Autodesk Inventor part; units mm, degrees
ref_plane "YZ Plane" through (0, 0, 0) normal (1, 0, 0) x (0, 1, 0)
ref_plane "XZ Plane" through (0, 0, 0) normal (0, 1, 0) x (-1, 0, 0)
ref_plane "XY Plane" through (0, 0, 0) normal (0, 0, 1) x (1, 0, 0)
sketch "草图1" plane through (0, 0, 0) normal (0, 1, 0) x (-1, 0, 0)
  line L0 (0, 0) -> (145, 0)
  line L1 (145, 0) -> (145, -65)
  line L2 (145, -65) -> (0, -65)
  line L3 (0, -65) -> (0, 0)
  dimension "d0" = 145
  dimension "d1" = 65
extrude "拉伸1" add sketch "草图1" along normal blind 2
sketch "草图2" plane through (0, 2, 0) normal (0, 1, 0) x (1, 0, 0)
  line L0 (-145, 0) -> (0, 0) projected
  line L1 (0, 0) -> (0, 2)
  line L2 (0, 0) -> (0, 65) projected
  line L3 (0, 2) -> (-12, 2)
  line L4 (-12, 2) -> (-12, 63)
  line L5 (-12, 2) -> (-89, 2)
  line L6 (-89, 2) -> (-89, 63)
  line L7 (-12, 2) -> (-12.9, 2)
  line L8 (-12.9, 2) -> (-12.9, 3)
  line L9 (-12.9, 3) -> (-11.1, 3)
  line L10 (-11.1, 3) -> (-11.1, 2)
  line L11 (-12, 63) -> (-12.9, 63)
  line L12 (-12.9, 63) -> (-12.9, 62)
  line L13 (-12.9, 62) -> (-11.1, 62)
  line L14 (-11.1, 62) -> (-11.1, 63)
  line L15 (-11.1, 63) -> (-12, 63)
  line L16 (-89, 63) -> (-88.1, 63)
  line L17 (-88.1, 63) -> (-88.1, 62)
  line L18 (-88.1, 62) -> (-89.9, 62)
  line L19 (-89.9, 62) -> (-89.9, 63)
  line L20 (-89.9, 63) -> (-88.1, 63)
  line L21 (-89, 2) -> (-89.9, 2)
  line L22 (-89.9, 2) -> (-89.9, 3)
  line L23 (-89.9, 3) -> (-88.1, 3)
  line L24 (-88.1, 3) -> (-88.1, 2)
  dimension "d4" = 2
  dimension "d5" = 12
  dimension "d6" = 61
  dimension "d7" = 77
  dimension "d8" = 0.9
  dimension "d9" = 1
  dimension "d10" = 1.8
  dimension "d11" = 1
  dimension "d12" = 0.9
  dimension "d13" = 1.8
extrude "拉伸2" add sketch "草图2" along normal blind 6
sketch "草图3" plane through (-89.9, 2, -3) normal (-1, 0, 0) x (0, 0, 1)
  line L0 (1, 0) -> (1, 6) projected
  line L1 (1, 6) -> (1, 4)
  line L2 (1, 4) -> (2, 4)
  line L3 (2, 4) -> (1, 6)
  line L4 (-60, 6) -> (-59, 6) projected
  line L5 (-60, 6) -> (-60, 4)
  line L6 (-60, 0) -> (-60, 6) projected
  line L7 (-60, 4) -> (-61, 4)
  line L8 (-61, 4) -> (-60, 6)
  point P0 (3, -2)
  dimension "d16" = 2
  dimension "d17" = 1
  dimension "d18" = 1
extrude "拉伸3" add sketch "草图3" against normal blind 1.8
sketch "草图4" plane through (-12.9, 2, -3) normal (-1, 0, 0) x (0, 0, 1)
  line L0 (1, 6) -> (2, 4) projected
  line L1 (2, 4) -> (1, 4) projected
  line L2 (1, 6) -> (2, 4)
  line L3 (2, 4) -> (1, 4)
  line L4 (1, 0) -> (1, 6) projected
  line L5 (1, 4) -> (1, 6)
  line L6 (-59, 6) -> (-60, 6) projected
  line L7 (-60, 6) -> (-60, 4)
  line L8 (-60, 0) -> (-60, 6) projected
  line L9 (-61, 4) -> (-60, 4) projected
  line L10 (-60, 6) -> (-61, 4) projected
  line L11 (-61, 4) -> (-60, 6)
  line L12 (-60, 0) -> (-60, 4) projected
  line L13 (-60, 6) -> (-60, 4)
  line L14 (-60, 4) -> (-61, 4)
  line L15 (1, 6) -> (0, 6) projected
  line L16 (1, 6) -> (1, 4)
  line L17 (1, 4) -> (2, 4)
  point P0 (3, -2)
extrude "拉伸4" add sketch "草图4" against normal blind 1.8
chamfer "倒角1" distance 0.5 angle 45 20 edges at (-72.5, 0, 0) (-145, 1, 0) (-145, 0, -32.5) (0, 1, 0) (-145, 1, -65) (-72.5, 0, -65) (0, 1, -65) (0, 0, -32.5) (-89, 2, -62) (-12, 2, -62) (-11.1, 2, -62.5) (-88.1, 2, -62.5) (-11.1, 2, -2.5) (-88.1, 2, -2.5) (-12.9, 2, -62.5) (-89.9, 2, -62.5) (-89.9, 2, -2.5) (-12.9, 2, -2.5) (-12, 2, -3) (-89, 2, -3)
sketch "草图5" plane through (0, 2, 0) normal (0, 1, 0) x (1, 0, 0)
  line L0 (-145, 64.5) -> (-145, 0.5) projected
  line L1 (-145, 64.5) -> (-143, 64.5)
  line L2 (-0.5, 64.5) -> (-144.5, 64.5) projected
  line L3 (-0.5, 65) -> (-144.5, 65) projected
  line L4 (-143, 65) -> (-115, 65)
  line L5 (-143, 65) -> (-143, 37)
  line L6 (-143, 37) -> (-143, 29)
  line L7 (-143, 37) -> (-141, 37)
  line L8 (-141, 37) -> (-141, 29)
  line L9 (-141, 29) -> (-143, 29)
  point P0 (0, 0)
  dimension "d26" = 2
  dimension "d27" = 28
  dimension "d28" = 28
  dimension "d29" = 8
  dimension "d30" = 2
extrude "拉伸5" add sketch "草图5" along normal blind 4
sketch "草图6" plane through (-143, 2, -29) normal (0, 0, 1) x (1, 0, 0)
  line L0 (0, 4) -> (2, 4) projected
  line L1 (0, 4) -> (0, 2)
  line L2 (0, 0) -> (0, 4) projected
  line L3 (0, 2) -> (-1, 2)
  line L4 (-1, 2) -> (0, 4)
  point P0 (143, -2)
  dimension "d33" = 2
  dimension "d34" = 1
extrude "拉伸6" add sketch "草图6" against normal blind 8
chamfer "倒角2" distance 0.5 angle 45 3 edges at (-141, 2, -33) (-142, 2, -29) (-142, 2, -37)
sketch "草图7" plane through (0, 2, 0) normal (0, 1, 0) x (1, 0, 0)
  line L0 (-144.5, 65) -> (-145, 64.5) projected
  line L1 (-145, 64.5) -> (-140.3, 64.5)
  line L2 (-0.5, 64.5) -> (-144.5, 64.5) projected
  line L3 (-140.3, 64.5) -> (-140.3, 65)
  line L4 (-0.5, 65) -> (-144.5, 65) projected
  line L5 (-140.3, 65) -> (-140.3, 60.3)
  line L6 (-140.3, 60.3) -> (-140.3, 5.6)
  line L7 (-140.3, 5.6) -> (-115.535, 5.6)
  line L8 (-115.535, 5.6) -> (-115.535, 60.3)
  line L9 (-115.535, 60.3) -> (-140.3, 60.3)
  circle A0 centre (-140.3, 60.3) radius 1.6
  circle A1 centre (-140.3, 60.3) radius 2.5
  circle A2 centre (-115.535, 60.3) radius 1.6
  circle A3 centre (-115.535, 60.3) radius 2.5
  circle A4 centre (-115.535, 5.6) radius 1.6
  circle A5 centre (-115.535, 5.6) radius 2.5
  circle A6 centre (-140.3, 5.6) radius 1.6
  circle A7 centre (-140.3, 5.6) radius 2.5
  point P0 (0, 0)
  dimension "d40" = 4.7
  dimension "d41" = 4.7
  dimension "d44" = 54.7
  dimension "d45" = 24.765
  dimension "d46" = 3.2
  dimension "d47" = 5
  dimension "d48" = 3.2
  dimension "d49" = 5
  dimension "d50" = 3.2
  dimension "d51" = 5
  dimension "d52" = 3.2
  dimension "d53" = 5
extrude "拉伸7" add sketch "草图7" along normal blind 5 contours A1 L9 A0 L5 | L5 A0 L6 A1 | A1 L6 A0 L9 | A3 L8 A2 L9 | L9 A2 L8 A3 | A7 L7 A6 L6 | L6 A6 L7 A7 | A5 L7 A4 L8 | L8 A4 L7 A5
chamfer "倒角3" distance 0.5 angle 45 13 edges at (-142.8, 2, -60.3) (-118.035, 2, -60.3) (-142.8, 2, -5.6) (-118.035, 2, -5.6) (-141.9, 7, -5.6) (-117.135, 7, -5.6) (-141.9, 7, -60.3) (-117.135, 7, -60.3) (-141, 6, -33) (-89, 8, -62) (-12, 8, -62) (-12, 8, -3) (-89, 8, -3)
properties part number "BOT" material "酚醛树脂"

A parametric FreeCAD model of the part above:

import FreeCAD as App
import Part
import Sketcher

V = App.Vector


def edges_at(feature, points):
    """Names of the edges that pass closest to the given points."""
    edges = feature.Shape.Edges
    near = lambda p: min(range(len(edges)), key=lambda i: edges[i].distToShape(Part.Vertex(*p))[0])
    return sorted({f"Edge{near(p) + 1}" for p in points})


def add_polygon(sketch, points):
    """Adds a closed chain of lines whose ends are joined by coincident constraints."""
    first, n = sketch.GeometryCount, len(points)
    for a, b in zip(points, points[1:] + points[:1]):
        sketch.addGeometry(Part.LineSegment(App.Vector(*a, 0), App.Vector(*b, 0)), False)
    for i in range(n):
        sketch.addConstraint(Sketcher.Constraint("Coincident", first + i, 2, first + (i + 1) % n, 1))

doc = App.newDocument("Part")
body = doc.addObject("PartDesign::Body", "Body")

sketch1 = doc.addObject("Sketcher::SketchObject", "Sketch")
body.addObject(sketch1)
sketch1.AttachmentSupport = (doc.XZ_Plane, [""])
sketch1.MapMode = "FlatFace"
add_polygon(sketch1, [(-145, 0), (0, 0), (0, -65), (-145, -65)])
sketch1.addConstraint(Sketcher.Constraint("Horizontal", 0))
sketch1.addConstraint(Sketcher.Constraint("Vertical", 1))
sketch1.addConstraint(Sketcher.Constraint("Horizontal", 2))
sketch1.addConstraint(Sketcher.Constraint("Vertical", 3))
sketch1.addConstraint(Sketcher.Constraint("Coincident", 0, 2, -1, 1))
sketch1.addConstraint(Sketcher.Constraint("DistanceX", 0, 1, 0, 2, 145.0))
sketch1.addConstraint(Sketcher.Constraint("DistanceY", 1, 2, 1, 1, 65.0))
pad1 = doc.addObject("PartDesign::Pad", "Pad")
body.addObject(pad1)
pad1.Profile = sketch1
pad1.Length = 2
pad1.Reversed = True

sketch2 = doc.addObject("Sketcher::SketchObject", "Sketch001")
body.addObject(sketch2)
sketch2.AttachmentSupport = (doc.XZ_Plane, [""])
sketch2.MapMode = "FlatFace"
sketch2.AttachmentOffset = App.Placement(V(0, 0, -2), App.Rotation())
add_polygon(sketch2, [(-89.9, -62), (-88.1, -62), (-88.1, -63), (-89.9, -63)])
add_polygon(sketch2, [(-88.1, -2), (-88.1, -3), (-89.9, -3), (-89.9, -2)])
add_polygon(sketch2, [(-12.9, -62), (-11.1, -62), (-11.1, -63), (-12.9, -63)])
add_polygon(sketch2, [(-11.1, -2), (-11.1, -3), (-12.9, -3), (-12.9, -2)])
sketch2.addConstraint(Sketcher.Constraint("Horizontal", 0))
sketch2.addConstraint(Sketcher.Constraint("Vertical", 1))
sketch2.addConstraint(Sketcher.Constraint("Horizontal", 2))
sketch2.addConstraint(Sketcher.Constraint("Vertical", 3))
sketch2.addConstraint(Sketcher.Constraint("Vertical", 4))
sketch2.addConstraint(Sketcher.Constraint("Horizontal", 5))
sketch2.addConstraint(Sketcher.Constraint("Vertical", 6))
sketch2.addConstraint(Sketcher.Constraint("Horizontal", 7))
sketch2.addConstraint(Sketcher.Constraint("Horizontal", 8))
sketch2.addConstraint(Sketcher.Constraint("Vertical", 9))
sketch2.addConstraint(Sketcher.Constraint("Horizontal", 10))
sketch2.addConstraint(Sketcher.Constraint("Vertical", 11))
sketch2.addConstraint(Sketcher.Constraint("Vertical", 12))
sketch2.addConstraint(Sketcher.Constraint("Horizontal", 13))
sketch2.addConstraint(Sketcher.Constraint("Vertical", 14))
sketch2.addConstraint(Sketcher.Constraint("Horizontal", 15))
sketch2.addConstraint(Sketcher.Constraint("Horizontal", 3, 2, 8, 2))
sketch2.addConstraint(Sketcher.Constraint("Horizontal", 2, 2, 9, 2))
sketch2.addConstraint(Sketcher.Constraint("Horizontal", 5, 2, 12, 2))
sketch2.addConstraint(Sketcher.Constraint("Horizontal", 7, 2, 14, 2))
sketch2.addConstraint(Sketcher.Constraint("Vertical", 1, 2, 4, 2))
sketch2.addConstraint(Sketcher.Constraint("Vertical", 3, 2, 5, 2))
sketch2.addConstraint(Sketcher.Constraint("Vertical", 9, 2, 12, 2))
sketch2.addConstraint(Sketcher.Constraint("Vertical", 11, 2, 13, 2))
sketch2.addConstraint(Sketcher.Constraint("Equal", 7, 8))
sketch2.addConstraint(Sketcher.Constraint("Equal", 3, 4))
sketch2.addConstraint(Sketcher.Constraint("DistanceY", 1, 2, 1, 1, 1.0))
sketch2.addConstraint(Sketcher.Constraint("DistanceX", 0, 1, 0, 2, 1.8))
sketch2.addConstraint(Sketcher.Constraint("DistanceY", 6, 2, -1, 1, 2.0))
sketch2.addConstraint(Sketcher.Constraint("DistanceY", 2, 2, 6, 2, 61.0))
sketch2.addConstraint(Sketcher.Constraint("DistanceX", 0, 2, 8, 2, 77.0))
sketch2.addConstraint(Sketcher.Constraint("DistanceX", 0, 2, -1, 1, 88.1))
pad2 = doc.addObject("PartDesign::Pad", "Pad001")
body.addObject(pad2)
pad2.Profile = sketch2
pad2.Length = 6
pad2.Reversed = True

sketch3 = doc.addObject("Sketcher::SketchObject", "Sketch002")
body.addObject(sketch3)
sketch3.AttachmentSupport = (doc.YZ_Plane, [""])
sketch3.MapMode = "FlatFace"
sketch3.AttachmentOffset = App.Placement(V(0, 0, -89.9), App.Rotation())
add_polygon(sketch3, [(8, -2), (6, -2), (6, -1)])
add_polygon(sketch3, [(6, -63), (8, -63), (6, -64)])
sketch3.addConstraint(Sketcher.Constraint("Horizontal", 0))
sketch3.addConstraint(Sketcher.Constraint("Vertical", 1))
sketch3.addConstraint(Sketcher.Constraint("Horizontal", 3))
sketch3.addConstraint(Sketcher.Constraint("Vertical", 5))
sketch3.addConstraint(Sketcher.Constraint("Vertical", 2, 2, 3, 2))
sketch3.addConstraint(Sketcher.Constraint("Vertical", 1, 2, 4, 2))
sketch3.addConstraint(Sketcher.Constraint("Equal", 1, 5))
sketch3.addConstraint(Sketcher.Constraint("DistanceX", 0, 2, 0, 1, 2.0))
sketch3.addConstraint(Sketcher.Constraint("DistanceY", 1, 1, 1, 2, 1.0))
sketch3.addConstraint(Sketcher.Constraint("DistanceY", 0, 2, -1, 1, 2.0))
sketch3.addConstraint(Sketcher.Constraint("DistanceX", -1, 1, 0, 2, 6.0))
sketch3.addConstraint(Sketcher.Constraint("DistanceY", 3, 2, -1, 1, 63.0))
pad3 = doc.addObject("PartDesign::Pad", "Pad002")
body.addObject(pad3)
pad3.Profile = sketch3
pad3.Length = 1.8

sketch4 = doc.addObject("Sketcher::SketchObject", "Sketch003")
body.addObject(sketch4)
sketch4.AttachmentSupport = (doc.YZ_Plane, [""])
sketch4.MapMode = "FlatFace"
sketch4.AttachmentOffset = App.Placement(V(0, 0, -12.9), App.Rotation())
add_polygon(sketch4, [(6, -1), (8, -2), (6, -2)])
add_polygon(sketch4, [(6, -63), (8, -63), (6, -64)])
sketch4.addConstraint(Sketcher.Constraint("Horizontal", 1))
sketch4.addConstraint(Sketcher.Constraint("Vertical", 2))
sketch4.addConstraint(Sketcher.Constraint("Horizontal", 3))
sketch4.addConstraint(Sketcher.Constraint("Vertical", 5))
sketch4.addConstraint(Sketcher.Constraint("Vertical", 0, 2, 3, 2))
sketch4.addConstraint(Sketcher.Constraint("Vertical", 2, 2, 4, 2))
sketch4.addConstraint(Sketcher.Constraint("Equal", 2, 5))
sketch4.addConstraint(Sketcher.Constraint("DistanceX", 1, 2, 1, 1, 2.0))
sketch4.addConstraint(Sketcher.Constraint("DistanceY", 2, 1, 2, 2, 1.0))
sketch4.addConstraint(Sketcher.Constraint("DistanceX", -1, 1, 0, 2, 8.0))
sketch4.addConstraint(Sketcher.Constraint("DistanceY", 0, 2, -1, 1, 2.0))
sketch4.addConstraint(Sketcher.Constraint("DistanceY", 3, 2, -1, 1, 63.0))
pad4 = doc.addObject("PartDesign::Pad", "Pad003")
body.addObject(pad4)
pad4.Profile = sketch4
pad4.Length = 1.8
doc.recompute()

chamfer = doc.addObject("PartDesign::Chamfer", "Chamfer")
body.addObject(chamfer)
chamfer.Base = (pad4, edges_at(pad4, [
    (-72.5, 0, 0),
    (-145, 1, 0),
    (-145, 0, -32.5),
    (0, 1, 0),
    (-145, 1, -65),
    (-72.5, 0, -65),
    (0, 1, -65),
    (0, 0, -32.5),
    (-89, 2, -62),
    (-12, 2, -62),
    (-11.1, 2, -62.5),
    (-88.1, 2, -62.5),
    (-11.1, 2, -2.5),
    (-88.1, 2, -2.5),
    (-12.9, 2, -62.5),
    (-89.9, 2, -62.5),
    (-89.9, 2, -2.5),
    (-12.9, 2, -2.5),
    (-12, 2, -3),
    (-89, 2, -3),
]))
chamfer.Size = 0.5

sketch5 = doc.addObject("Sketcher::SketchObject", "Sketch004")
body.addObject(sketch5)
sketch5.AttachmentSupport = (doc.XZ_Plane, [""])
sketch5.MapMode = "FlatFace"
sketch5.AttachmentOffset = App.Placement(V(0, 0, -2), App.Rotation())
add_polygon(sketch5, [(-141, -37), (-143, -37), (-143, -29), (-141, -29)])
sketch5.addConstraint(Sketcher.Constraint("Horizontal", 0))
sketch5.addConstraint(Sketcher.Constraint("Vertical", 1))
sketch5.addConstraint(Sketcher.Constraint("Horizontal", 2))
sketch5.addConstraint(Sketcher.Constraint("Vertical", 3))
sketch5.addConstraint(Sketcher.Constraint("DistanceX", 0, 2, 0, 1, 2.0))
sketch5.addConstraint(Sketcher.Constraint("DistanceY", 1, 1, 1, 2, 8.0))
sketch5.addConstraint(Sketcher.Constraint("DistanceX", 0, 2, -1, 1, 143.0))
sketch5.addConstraint(Sketcher.Constraint("DistanceY", 0, 2, -1, 1, 37.0))
pad5 = doc.addObject("PartDesign::Pad", "Pad004")
body.addObject(pad5)
pad5.Profile = sketch5
pad5.Length = 4
pad5.Reversed = True

sketch6 = doc.addObject("Sketcher::SketchObject", "Sketch005")
body.addObject(sketch6)
sketch6.AttachmentSupport = (doc.XY_Plane, [""])
sketch6.MapMode = "FlatFace"
sketch6.AttachmentOffset = App.Placement(V(0, 0, -29), App.Rotation())
add_polygon(sketch6, [(-143, 4), (-143, 6), (-144, 4)])
sketch6.addConstraint(Sketcher.Constraint("Vertical", 0))
sketch6.addConstraint(Sketcher.Constraint("Horizontal", 2))
sketch6.addConstraint(Sketcher.Constraint("DistanceX", 2, 1, 2, 2, 1.0))
sketch6.addConstraint(Sketcher.Constraint("DistanceY", 0, 1, 0, 2, 2.0))
sketch6.addConstraint(Sketcher.Constraint("DistanceX", 0, 2, -1, 1, 143.0))
sketch6.addConstraint(Sketcher.Constraint("DistanceY", -1, 1, 0, 2, 6.0))
pad6 = doc.addObject("PartDesign::Pad", "Pad005")
body.addObject(pad6)
pad6.Profile = sketch6
pad6.Length = 8
pad6.Reversed = True
doc.recompute()

chamfer2 = doc.addObject("PartDesign::Chamfer", "Chamfer001")
body.addObject(chamfer2)
chamfer2.Base = (pad6, edges_at(pad6, [(-141, 2, -33), (-142, 2, -29), (-142, 2, -37)]))
chamfer2.Size = 0.5

sketch7 = doc.addObject("Sketcher::SketchObject", "Sketch006")
body.addObject(sketch7)
sketch7.AttachmentSupport = (doc.XZ_Plane, [""])
sketch7.MapMode = "FlatFace"
sketch7.AttachmentOffset = App.Placement(V(0, 0, -2), App.Rotation())
sketch7.addGeometry(Part.Circle(V(-140.3, -60.3, 0), V(0, 0, 1), 2.5), False)
sketch7.addGeometry(Part.Circle(V(-140.3, -60.3, 0), V(0, 0, 1), 1.6), False)
sketch7.addGeometry(Part.Circle(V(-115.5, -60.3, 0), V(0, 0, 1), 2.5), False)
sketch7.addGeometry(Part.Circle(V(-115.5, -60.3, 0), V(0, 0, 1), 1.6), False)
sketch7.addGeometry(Part.Circle(V(-140.3, -5.6, 0), V(0, 0, 1), 2.5), False)
sketch7.addGeometry(Part.Circle(V(-140.3, -5.6, 0), V(0, 0, 1), 1.6), False)
sketch7.addGeometry(Part.Circle(V(-115.5, -5.6, 0), V(0, 0, 1), 2.5), False)
sketch7.addGeometry(Part.Circle(V(-115.5, -5.6, 0), V(0, 0, 1), 1.6), False)
sketch7.addConstraint(Sketcher.Constraint("Coincident", 1, 3, 0, 3))
sketch7.addConstraint(Sketcher.Constraint("Coincident", 3, 3, 2, 3))
sketch7.addConstraint(Sketcher.Constraint("Coincident", 5, 3, 4, 3))
sketch7.addConstraint(Sketcher.Constraint("Coincident", 7, 3, 6, 3))
sketch7.addConstraint(Sketcher.Constraint("Equal", 0, 2))
sketch7.addConstraint(Sketcher.Constraint("Equal", 1, 3))
sketch7.addConstraint(Sketcher.Constraint("Equal", 2, 4))
sketch7.addConstraint(Sketcher.Constraint("Equal", 3, 5))
sketch7.addConstraint(Sketcher.Constraint("Equal", 4, 6))
sketch7.addConstraint(Sketcher.Constraint("Equal", 5, 7))
sketch7.addConstraint(Sketcher.Constraint("Horizontal", 1, 3, 2, 3))
sketch7.addConstraint(Sketcher.Constraint("Horizontal", 5, 3, 6, 3))
sketch7.addConstraint(Sketcher.Constraint("Vertical", 1, 3, 4, 3))
sketch7.addConstraint(Sketcher.Constraint("Vertical", 3, 3, 6, 3))
sketch7.addConstraint(Sketcher.Constraint("Diameter", 0, 5.0))
sketch7.addConstraint(Sketcher.Constraint("Diameter", 1, 3.2))
sketch7.addConstraint(Sketcher.Constraint("DistanceY", 0, 3, 4, 3, 54.7))
sketch7.addConstraint(Sketcher.Constraint("DistanceX", 0, 3, 2, 3, 24.765))
sketch7.addConstraint(Sketcher.Constraint("DistanceX", 0, 3, -1, 1, 140.3))
sketch7.addConstraint(Sketcher.Constraint("DistanceY", 0, 3, -1, 1, 60.3))
pad7 = doc.addObject("PartDesign::Pad", "Pad006")
body.addObject(pad7)
pad7.Profile = sketch7
pad7.Length = 5
pad7.Reversed = True
doc.recompute()

chamfer3 = doc.addObject("PartDesign::Chamfer", "Chamfer002")
body.addObject(chamfer3)
chamfer3.Base = (pad7, edges_at(pad7, [
    (-142.8, 2, -60.3),
    (-118.035, 2, -60.3),
    (-142.8, 2, -5.6),
    (-118.035, 2, -5.6),
    (-141.9, 7, -5.6),
    (-117.135, 7, -5.6),
    (-141.9, 7, -60.3),
    (-117.135, 7, -60.3),
    (-141, 6, -33),
    (-89, 8, -62),
    (-12, 8, -62),
    (-12, 8, -3),
    (-89, 8, -3),
]))
chamfer3.Size = 0.5

doc.recompute()
